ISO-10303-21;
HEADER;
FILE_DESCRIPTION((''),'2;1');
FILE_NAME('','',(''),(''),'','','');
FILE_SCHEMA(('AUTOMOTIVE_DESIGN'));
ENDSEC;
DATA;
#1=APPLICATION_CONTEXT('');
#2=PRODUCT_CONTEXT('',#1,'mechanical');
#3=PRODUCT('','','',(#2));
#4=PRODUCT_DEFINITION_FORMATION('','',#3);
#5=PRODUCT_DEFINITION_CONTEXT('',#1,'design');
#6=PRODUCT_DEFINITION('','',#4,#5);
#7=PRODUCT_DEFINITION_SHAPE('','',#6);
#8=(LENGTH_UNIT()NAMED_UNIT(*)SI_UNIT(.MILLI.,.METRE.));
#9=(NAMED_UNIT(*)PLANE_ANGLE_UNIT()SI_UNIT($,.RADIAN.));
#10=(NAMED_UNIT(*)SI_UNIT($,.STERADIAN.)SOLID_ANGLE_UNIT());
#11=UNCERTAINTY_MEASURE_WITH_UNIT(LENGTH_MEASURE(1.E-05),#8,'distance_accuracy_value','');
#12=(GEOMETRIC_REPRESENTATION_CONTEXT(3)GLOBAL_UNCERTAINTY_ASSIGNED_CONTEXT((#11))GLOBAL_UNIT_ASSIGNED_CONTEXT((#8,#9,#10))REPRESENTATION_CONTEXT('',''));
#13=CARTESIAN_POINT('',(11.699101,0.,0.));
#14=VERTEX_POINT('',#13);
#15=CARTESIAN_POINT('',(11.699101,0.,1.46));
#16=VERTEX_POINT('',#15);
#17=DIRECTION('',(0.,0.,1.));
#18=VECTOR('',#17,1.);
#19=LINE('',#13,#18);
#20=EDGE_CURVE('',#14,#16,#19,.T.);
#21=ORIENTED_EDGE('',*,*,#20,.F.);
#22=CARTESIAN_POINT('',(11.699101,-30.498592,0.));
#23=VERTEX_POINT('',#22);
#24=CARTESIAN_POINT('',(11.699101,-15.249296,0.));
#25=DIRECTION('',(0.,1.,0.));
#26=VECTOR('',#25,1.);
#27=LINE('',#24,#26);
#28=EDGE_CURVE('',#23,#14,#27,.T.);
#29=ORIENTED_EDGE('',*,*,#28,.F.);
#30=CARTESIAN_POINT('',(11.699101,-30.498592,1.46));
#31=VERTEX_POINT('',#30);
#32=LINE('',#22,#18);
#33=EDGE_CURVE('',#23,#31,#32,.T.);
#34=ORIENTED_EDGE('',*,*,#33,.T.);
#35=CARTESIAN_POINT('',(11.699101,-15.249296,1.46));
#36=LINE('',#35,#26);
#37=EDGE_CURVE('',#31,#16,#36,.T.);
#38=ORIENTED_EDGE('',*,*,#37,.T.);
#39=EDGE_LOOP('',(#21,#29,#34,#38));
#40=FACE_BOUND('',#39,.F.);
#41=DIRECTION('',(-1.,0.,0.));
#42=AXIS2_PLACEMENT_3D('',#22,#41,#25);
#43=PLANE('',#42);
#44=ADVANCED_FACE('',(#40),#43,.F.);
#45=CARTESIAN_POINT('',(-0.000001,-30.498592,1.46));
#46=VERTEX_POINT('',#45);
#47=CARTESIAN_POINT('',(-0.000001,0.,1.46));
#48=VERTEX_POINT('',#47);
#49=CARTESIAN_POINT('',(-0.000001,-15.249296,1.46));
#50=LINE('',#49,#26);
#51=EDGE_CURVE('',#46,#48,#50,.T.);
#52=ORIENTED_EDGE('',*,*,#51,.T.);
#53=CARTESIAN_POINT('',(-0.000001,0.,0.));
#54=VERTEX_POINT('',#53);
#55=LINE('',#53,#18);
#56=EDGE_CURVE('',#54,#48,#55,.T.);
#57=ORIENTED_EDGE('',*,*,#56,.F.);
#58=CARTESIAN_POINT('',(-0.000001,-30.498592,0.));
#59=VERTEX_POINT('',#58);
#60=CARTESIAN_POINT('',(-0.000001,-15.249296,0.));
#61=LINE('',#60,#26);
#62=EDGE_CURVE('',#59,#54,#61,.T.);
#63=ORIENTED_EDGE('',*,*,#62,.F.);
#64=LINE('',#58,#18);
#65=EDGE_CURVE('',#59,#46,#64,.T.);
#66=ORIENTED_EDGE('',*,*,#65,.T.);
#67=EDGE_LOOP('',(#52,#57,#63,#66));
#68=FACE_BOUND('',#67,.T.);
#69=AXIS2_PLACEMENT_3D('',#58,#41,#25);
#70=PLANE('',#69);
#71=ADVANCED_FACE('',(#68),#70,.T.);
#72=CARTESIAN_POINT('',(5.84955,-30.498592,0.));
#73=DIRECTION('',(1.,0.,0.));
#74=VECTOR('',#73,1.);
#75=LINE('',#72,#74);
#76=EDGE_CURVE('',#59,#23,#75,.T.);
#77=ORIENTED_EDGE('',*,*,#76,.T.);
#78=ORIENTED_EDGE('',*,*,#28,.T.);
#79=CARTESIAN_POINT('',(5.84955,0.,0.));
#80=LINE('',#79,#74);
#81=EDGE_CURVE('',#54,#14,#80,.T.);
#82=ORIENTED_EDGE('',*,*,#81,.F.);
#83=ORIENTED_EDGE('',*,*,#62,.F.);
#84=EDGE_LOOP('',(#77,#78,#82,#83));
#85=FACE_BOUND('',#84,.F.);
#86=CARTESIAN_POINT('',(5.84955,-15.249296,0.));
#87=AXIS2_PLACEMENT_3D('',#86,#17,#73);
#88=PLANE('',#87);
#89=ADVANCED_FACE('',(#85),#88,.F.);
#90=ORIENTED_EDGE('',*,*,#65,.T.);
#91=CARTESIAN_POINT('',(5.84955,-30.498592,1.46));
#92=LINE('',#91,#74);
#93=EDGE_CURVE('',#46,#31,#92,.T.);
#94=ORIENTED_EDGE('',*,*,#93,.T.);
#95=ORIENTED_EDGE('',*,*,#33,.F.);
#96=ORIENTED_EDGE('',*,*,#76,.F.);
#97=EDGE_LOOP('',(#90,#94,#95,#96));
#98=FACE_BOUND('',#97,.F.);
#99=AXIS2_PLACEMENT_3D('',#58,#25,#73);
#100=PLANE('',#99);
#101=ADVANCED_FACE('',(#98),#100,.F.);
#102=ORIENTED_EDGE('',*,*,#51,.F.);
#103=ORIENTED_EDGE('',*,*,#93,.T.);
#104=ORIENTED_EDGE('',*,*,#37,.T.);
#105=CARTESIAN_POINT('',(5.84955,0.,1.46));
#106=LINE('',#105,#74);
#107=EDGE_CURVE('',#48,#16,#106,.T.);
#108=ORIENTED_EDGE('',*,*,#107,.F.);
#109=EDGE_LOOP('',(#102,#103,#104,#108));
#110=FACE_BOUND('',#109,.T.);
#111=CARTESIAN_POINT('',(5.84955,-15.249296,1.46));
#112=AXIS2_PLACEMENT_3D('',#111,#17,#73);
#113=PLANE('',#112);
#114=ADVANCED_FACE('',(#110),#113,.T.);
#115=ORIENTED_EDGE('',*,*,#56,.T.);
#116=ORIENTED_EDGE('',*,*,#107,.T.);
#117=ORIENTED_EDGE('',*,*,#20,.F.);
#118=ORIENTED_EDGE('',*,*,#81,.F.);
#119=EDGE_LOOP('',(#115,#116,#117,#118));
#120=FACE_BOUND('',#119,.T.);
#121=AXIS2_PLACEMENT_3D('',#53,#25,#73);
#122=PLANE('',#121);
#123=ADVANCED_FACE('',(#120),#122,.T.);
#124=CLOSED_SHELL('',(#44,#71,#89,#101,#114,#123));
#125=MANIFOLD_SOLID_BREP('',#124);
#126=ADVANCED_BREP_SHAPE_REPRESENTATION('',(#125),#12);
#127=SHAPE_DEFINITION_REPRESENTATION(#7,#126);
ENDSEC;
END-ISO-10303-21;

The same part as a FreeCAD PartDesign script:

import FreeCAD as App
import Part
import Sketcher

doc = App.newDocument("Part")
params = doc.addObject("Spreadsheet::Sheet", "Params")
for row, (alias, value) in enumerate([
    ("pad1_length", "1.46 mm"),
], start=1):
    params.set(f"A{row}", alias)
    params.set(f"B{row}", "=" + value)
    params.setAlias(f"B{row}", alias)

body = doc.addObject("PartDesign::Body", "Body")

# Sketch on XY plane
sketch1 = doc.addObject("Sketcher::SketchObject", "Sketch")
body.addObject(sketch1)
sketch1.AttachmentSupport = (doc.XY_Plane, [""])
sketch1.MapMode = "FlatFace"
sketch1.addGeometry([
    Part.LineSegment(App.Vector(0, 0, 0), App.Vector(0, -30, 0)),
    Part.LineSegment(App.Vector(0, -30, 0), App.Vector(12, -30, 0)),
    Part.LineSegment(App.Vector(12, -30, 0), App.Vector(12, 0, 0)),
    Part.LineSegment(App.Vector(12, 0, 0), App.Vector(0, 0, 0)),
], False)
sketch1.addConstraint([
    Sketcher.Constraint("Coincident", 0, 2, 1, 1),
    Sketcher.Constraint("Coincident", 1, 2, 2, 1),
    Sketcher.Constraint("Coincident", 2, 2, 3, 1),
    Sketcher.Constraint("Coincident", 3, 2, 0, 1),
    Sketcher.Constraint("Vertical", 0),
    Sketcher.Constraint("Horizontal", 1),
    Sketcher.Constraint("Vertical", 2),
    Sketcher.Constraint("Horizontal", 3),
    Sketcher.Constraint("Coincident", 3, 2, -1, 1),
    Sketcher.Constraint("DistanceX", 1, 1, 1, 2, 11.699101),
    Sketcher.Constraint("DistanceY", 0, 2, 0, 1, 30.498592),
])
pad1 = doc.addObject("PartDesign::Pad", "Pad")
body.addObject(pad1)
pad1.Profile = sketch1
pad1.setExpression("Length", "Params.pad1_length")

doc.recompute()
